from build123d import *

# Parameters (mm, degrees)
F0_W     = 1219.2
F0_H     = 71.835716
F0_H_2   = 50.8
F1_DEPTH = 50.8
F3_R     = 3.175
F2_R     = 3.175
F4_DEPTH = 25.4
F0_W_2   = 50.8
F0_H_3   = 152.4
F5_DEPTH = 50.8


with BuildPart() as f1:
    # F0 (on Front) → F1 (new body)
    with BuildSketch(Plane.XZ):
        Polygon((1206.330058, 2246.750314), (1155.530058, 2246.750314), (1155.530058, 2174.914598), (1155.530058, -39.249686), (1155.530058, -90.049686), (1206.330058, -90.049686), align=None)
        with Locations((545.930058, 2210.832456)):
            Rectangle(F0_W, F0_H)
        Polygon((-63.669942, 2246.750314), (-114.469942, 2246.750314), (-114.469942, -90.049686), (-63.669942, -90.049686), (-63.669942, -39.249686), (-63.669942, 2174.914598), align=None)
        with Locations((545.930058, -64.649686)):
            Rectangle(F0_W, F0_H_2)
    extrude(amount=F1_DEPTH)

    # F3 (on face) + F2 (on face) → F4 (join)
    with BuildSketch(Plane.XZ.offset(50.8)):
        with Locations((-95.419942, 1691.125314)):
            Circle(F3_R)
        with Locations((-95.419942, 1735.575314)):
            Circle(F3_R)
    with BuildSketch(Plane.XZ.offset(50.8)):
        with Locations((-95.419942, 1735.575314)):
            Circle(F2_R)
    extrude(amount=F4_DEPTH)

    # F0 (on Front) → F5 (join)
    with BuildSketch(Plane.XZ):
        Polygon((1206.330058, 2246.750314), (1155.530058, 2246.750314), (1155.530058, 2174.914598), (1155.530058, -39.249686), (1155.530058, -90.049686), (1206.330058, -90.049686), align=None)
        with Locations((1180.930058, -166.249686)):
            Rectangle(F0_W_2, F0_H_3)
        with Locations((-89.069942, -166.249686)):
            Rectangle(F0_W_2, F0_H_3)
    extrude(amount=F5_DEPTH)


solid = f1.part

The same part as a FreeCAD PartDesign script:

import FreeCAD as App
import Part
import Sketcher
Q = App.Units.Quantity

doc = App.newDocument("Part")
body = doc.addObject("PartDesign::Body", "Body")

# Sketch on XZ plane
sketch1 = body.newObject("Sketcher::SketchObject", "Sketch")
sketch1.AttachmentSupport = (doc.getObject("XZ_Plane"), [""])
sketch1.MapMode = "FlatFace"
sketch1.addGeometry([
    Part.LineSegment(App.Vector(1206.330058, 2246.750314, 0), App.Vector(-114.469942, 2246.750314, 0)),  # 0
    Part.LineSegment(App.Vector(-114.469942, 2246.750314, 0), App.Vector(-114.469942, -90.049686, 0)),  # 1
    Part.LineSegment(App.Vector(-114.469942, -90.049686, 0), App.Vector(1206.330058, -90.049686, 0)),  # 2
    Part.LineSegment(App.Vector(1206.330058, -90.049686, 0), App.Vector(1206.330058, 2246.750314, 0)),  # 3
    Part.LineSegment(App.Vector(-63.669942, -39.249686, 0), App.Vector(-63.669942, 2174.914598, 0)),  # 4
    Part.LineSegment(App.Vector(-63.669942, 2174.914598, 0), App.Vector(1155.530058, 2174.914598, 0)),  # 5
    Part.LineSegment(App.Vector(1155.530058, 2174.914598, 0), App.Vector(1155.530058, -39.249686, 0)),  # 6
    Part.LineSegment(App.Vector(1155.530058, -39.249686, 0), App.Vector(-63.669942, -39.249686, 0)),  # 7
], False)
sketch1.addConstraint([
    Sketcher.Constraint("Coincident", 0, 2, 1, 1),
    Sketcher.Constraint("Coincident", 1, 2, 2, 1),
    Sketcher.Constraint("Coincident", 2, 2, 3, 1),
    Sketcher.Constraint("Coincident", 3, 2, 0, 1),
    Sketcher.Constraint("Coincident", 4, 2, 5, 1),
    Sketcher.Constraint("Coincident", 5, 2, 6, 1),
    Sketcher.Constraint("Coincident", 6, 2, 7, 1),
    Sketcher.Constraint("Coincident", 7, 2, 4, 1),
    Sketcher.Constraint("Horizontal", 0),
    Sketcher.Constraint("Vertical", 1),
    Sketcher.Constraint("Horizontal", 2),
    Sketcher.Constraint("Vertical", 3),
    Sketcher.Constraint("Vertical", 4),
    Sketcher.Constraint("Horizontal", 5),
    Sketcher.Constraint("Vertical", 6),
    Sketcher.Constraint("Horizontal", 7),
    Sketcher.Constraint("DistanceX", 0, 2, 0, 1, Q("52 in")),
    Sketcher.Constraint("DistanceX", 5, 1, 5, 2, Q("48 in")),
    Sketcher.Constraint("DistanceY", 1, 2, 1, 1, Q("92 in")),
    Sketcher.Constraint("DistanceX", 0, 2, 4, 2, Q("2 in")),
    Sketcher.Constraint("DistanceY", 2, 2, 6, 2, Q("2 in")),
    Sketcher.Constraint("DistanceY", 4, 1, 4, 2, 2214.164284),
    Sketcher.Constraint("DistanceX", -1, 1, 2, 2, 1206.330058),
    Sketcher.Constraint("DistanceY", -1, 1, 0, 2, 2246.750314),
])
pad1 = body.newObject("PartDesign::Pad", "Pad")
pad1.Profile = sketch1
pad1.Length = Q("2 in")

# Sketch on XZ plane
sketch2 = body.newObject("Sketcher::SketchObject", "Sketch001")
sketch2.AttachmentSupport = (doc.getObject("XZ_Plane"), [""])
sketch2.MapMode = "FlatFace"
sketch2.AttachmentOffset = App.Placement(App.Vector(0, 0, 2 * 25.4), App.Rotation())
sketch2.addGeometry([
    Part.Circle(App.Vector(-95.419942, 1691.125314, 0), App.Vector(0, 0, 1), 3.175),
    Part.Circle(App.Vector(-95.419942, 1735.575314, 0), App.Vector(0, 0, 1), 3.175),
], False)
sketch2.addConstraint([
    Sketcher.Constraint("Equal", 0, 1),
    Sketcher.Constraint("Vertical", 0, 3, 1, 3),
    Sketcher.Constraint("Diameter", 0, Q("0.25 in")),
    Sketcher.Constraint("DistanceY", 0, 3, 1, 3, Q("1.75 in")),
    Sketcher.Constraint("DistanceX", 0, 3, -1, 1, 95.419942),
    Sketcher.Constraint("DistanceY", -1, 1, 0, 3, 1691.125314),
])
pad2 = body.newObject("PartDesign::Pad", "Pad001")
pad2.Profile = sketch2
pad2.Length = Q("1 in")

# Sketch on XZ plane
sketch3 = body.newObject("Sketcher::SketchObject", "Sketch002")
sketch3.AttachmentSupport = (doc.getObject("XZ_Plane"), [""])
sketch3.MapMode = "FlatFace"
sketch3.addGeometry([
    Part.LineSegment(App.Vector(1206.330058, 2246.750314, 0), App.Vector(1155.530058, 2246.750314, 0)),  # 0
    Part.LineSegment(App.Vector(1155.530058, 2246.750314, 0), App.Vector(1155.530058, -242.449686, 0)),  # 1
    Part.LineSegment(App.Vector(1155.530058, -242.449686, 0), App.Vector(1206.330058, -242.449686, 0)),  # 2
    Part.LineSegment(App.Vector(1206.330058, -242.449686, 0), App.Vector(1206.330058, 2246.750314, 0)),  # 3
    Part.LineSegment(App.Vector(-114.469942, -90.049686, 0), App.Vector(-114.469942, -242.449686, 0)),  # 4
    Part.LineSegment(App.Vector(-114.469942, -242.449686, 0), App.Vector(-63.669942, -242.449686, 0)),  # 5
    Part.LineSegment(App.Vector(-63.669942, -242.449686, 0), App.Vector(-63.669942, -90.049686, 0)),  # 6
    Part.LineSegment(App.Vector(-63.669942, -90.049686, 0), App.Vector(-114.469942, -90.049686, 0)),  # 7
], False)
sketch3.addConstraint([
    Sketcher.Constraint("Coincident", 0, 2, 1, 1),
    Sketcher.Constraint("Coincident", 1, 2, 2, 1),
    Sketcher.Constraint("Coincident", 2, 2, 3, 1),
    Sketcher.Constraint("Coincident", 3, 2, 0, 1),
    Sketcher.Constraint("Coincident", 4, 2, 5, 1),
    Sketcher.Constraint("Coincident", 5, 2, 6, 1),
    Sketcher.Constraint("Coincident", 6, 2, 7, 1),
    Sketcher.Constraint("Coincident", 7, 2, 4, 1),
    Sketcher.Constraint("Horizontal", 0),
    Sketcher.Constraint("Vertical", 1),
    Sketcher.Constraint("Horizontal", 2),
    Sketcher.Constraint("Vertical", 3),
    Sketcher.Constraint("Vertical", 4),
    Sketcher.Constraint("Horizontal", 5),
    Sketcher.Constraint("Vertical", 6),
    Sketcher.Constraint("Horizontal", 7),
    Sketcher.Constraint("Horizontal", 2, 2, 4, 2),
    Sketcher.Constraint("Equal", 2, 5),
    Sketcher.Constraint("DistanceX", 0, 2, 0, 1, Q("2 in")),
    Sketcher.Constraint("DistanceY", 1, 2, 1, 1, Q("98 in")),
    Sketcher.Constraint("DistanceY", 4, 2, 4, 1, Q("6 in")),
    Sketcher.Constraint("DistanceX", 4, 2, 1, 2, Q("50 in")),
    Sketcher.Constraint("DistanceX", -1, 1, 0, 2, 1155.530058),
    Sketcher.Constraint("DistanceY", -1, 1, 0, 2, 2246.750314),
])
pad3 = body.newObject("PartDesign::Pad", "Pad002")
pad3.Profile = sketch3
pad3.Length = Q("2 in")

doc.recompute()
